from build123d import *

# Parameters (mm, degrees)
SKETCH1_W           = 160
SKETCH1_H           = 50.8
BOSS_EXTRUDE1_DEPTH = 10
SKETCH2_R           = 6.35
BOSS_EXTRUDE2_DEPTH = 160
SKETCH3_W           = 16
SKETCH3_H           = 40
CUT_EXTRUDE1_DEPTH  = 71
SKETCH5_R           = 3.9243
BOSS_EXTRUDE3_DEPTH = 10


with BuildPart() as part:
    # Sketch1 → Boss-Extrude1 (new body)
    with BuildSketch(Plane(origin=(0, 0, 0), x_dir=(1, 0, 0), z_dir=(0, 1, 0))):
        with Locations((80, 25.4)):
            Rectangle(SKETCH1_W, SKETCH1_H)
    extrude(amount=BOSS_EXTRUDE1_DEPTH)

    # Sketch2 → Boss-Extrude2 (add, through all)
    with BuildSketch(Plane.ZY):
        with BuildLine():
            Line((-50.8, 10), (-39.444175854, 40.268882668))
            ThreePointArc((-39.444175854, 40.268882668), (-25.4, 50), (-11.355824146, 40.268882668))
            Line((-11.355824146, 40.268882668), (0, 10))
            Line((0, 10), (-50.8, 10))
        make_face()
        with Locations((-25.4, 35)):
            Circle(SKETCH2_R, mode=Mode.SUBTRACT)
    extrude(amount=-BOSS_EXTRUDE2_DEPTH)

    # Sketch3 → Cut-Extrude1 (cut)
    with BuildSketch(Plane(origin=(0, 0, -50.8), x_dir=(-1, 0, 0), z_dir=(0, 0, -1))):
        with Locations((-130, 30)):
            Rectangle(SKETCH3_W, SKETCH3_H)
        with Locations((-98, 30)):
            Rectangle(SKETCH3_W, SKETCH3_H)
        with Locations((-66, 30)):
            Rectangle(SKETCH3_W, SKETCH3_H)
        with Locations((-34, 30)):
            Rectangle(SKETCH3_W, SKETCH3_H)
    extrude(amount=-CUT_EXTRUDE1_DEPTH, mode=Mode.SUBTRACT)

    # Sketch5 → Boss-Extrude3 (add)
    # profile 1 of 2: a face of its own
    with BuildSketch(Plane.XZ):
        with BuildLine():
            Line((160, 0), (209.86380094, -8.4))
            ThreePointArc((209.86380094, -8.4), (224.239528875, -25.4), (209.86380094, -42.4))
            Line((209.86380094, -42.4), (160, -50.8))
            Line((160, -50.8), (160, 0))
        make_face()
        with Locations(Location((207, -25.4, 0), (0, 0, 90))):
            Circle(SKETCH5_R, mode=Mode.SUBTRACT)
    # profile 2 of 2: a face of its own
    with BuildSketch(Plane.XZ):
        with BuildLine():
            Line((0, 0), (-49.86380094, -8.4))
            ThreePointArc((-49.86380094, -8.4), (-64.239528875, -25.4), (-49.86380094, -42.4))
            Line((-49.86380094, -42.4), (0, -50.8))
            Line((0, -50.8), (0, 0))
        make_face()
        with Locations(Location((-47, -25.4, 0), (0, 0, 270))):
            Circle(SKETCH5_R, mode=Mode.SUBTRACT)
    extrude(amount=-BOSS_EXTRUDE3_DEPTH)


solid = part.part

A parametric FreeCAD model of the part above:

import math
import FreeCAD as App
import Part
import Sketcher
from FreeCAD import Vector
Q = App.Units.Quantity


def add_polygon(sketch, points):
    """Adds a closed chain of lines whose ends are joined by coincident constraints."""
    first, n = sketch.GeometryCount, len(points)
    for a, b in zip(points, points[1:] + points[:1]):
        sketch.addGeometry(Part.LineSegment(App.Vector(*a, 0), App.Vector(*b, 0)), False)
    for i in range(n):
        sketch.addConstraint(Sketcher.Constraint("Coincident", first + i, 2, first + (i + 1) % n, 1))

doc = App.newDocument("Part")
body = doc.addObject("PartDesign::Body", "Body")

sketch1 = body.newObject("Sketcher::SketchObject", "Sketch")
sketch1.AttachmentSupport = (doc.getObject("XZ_Plane"), [""])
sketch1.MapMode = "FlatFace"
add_polygon(sketch1, [(0, -50.8), (0, 0), (160, 0), (160, -50.8)])
sketch1.addConstraint([
    Sketcher.Constraint("Vertical", 0),
    Sketcher.Constraint("Horizontal", 1),
    Sketcher.Constraint("Vertical", 2),
    Sketcher.Constraint("Horizontal", 3),
    Sketcher.Constraint("Coincident", 0, 2, -1, 1),
    Sketcher.Constraint("DistanceX", 1, 1, 1, 2, Q("160 mm")),
    Sketcher.Constraint("DistanceY", 0, 1, 0, 2, Q("50.8 mm")),
])
pad1 = body.newObject("PartDesign::Pad", "Pad")
pad1.Profile = sketch1
pad1.Length = 10
pad1.Reversed = True

sketch2 = body.newObject("Sketcher::SketchObject", "Sketch001")
sketch2.AttachmentSupport = (doc.getObject("YZ_Plane"), [""])
sketch2.MapMode = "FlatFace"
sketch2.addGeometry([
    Part.LineSegment(Vector(40.268883, -39.444176, 0), Vector(10, -50.8, 0)),
    Part.LineSegment(Vector(10, -50.8, 0), Vector(10, 0, 0)),
    Part.LineSegment(Vector(10, 0, 0), Vector(40.268883, -11.355824, 0)),
    Part.ArcOfCircle(Part.Circle(Vector(35, -25.4, 0), Vector(0, 0, 1), 15), math.radians(-69.435669), math.radians(69.435669)),
    Part.Circle(Vector(35, -25.4, 0), Vector(0, 0, 1), 6.35),
], False)
sketch2.addConstraint([
    Sketcher.Constraint("Coincident", 0, 2, 1, 1),
    Sketcher.Constraint("Coincident", 1, 2, 2, 1),
    Sketcher.Constraint("Tangent", 2, 2, 3, 2),
    Sketcher.Constraint("Tangent", 3, 1, 0, 1),
    Sketcher.Constraint("Vertical", 1),
    Sketcher.Constraint("Coincident", 4, 3, 3, 3),
    Sketcher.Constraint("PointOnObject", 1, 2, -1),
    Sketcher.Constraint("Vertical", 2, 2, 3, 1),
    Sketcher.Constraint("Radius", 3, Q("15 mm")),
    Sketcher.Constraint("Diameter", 4, Q("12.7 mm")),
    Sketcher.Constraint("DistanceY", 1, 1, 1, 2, Q("50.8 mm")),
    Sketcher.Constraint("DistanceX", -1, 1, 3, 3, Q("35 mm")),
    Sketcher.Constraint("DistanceX", -1, 1, 0, 2, Q("10 mm")),
])
pad2 = body.newObject("PartDesign::Pad", "Pad001")
pad2.Profile = sketch2
pad2.Length = 160

sketch3 = body.newObject("Sketcher::SketchObject", "Sketch002")
sketch3.AttachmentSupport = (doc.getObject("XY_Plane"), [""])
sketch3.MapMode = "FlatFace"
sketch3.AttachmentOffset = App.Placement(Vector(0, 0, -50.8), App.Rotation())
add_polygon(sketch3, [(138, 50), (138, 10), (122, 10), (122, 50)])
add_polygon(sketch3, [(106, 50), (106, 10), (90, 10), (90, 50)])
add_polygon(sketch3, [(74, 50), (74, 10), (58, 10), (58, 50)])
add_polygon(sketch3, [(42, 50), (42, 10), (26, 10), (26, 50)])
sketch3.addConstraint([
    Sketcher.Constraint("Vertical", 0),
    Sketcher.Constraint("Horizontal", 1),
    Sketcher.Constraint("Vertical", 2),
    Sketcher.Constraint("Horizontal", 3),
    Sketcher.Constraint("Vertical", 4),
    Sketcher.Constraint("Horizontal", 5),
    Sketcher.Constraint("Vertical", 6),
    Sketcher.Constraint("Horizontal", 7),
    Sketcher.Constraint("Vertical", 8),
    Sketcher.Constraint("Horizontal", 9),
    Sketcher.Constraint("Vertical", 10),
    Sketcher.Constraint("Horizontal", 11),
    Sketcher.Constraint("Vertical", 12),
    Sketcher.Constraint("Horizontal", 13),
    Sketcher.Constraint("Vertical", 14),
    Sketcher.Constraint("Horizontal", 15),
    Sketcher.Constraint("Horizontal", 1, 2, 4, 2),
    Sketcher.Constraint("Horizontal", 3, 2, 6, 2),
    Sketcher.Constraint("Horizontal", 5, 2, 8, 2),
    Sketcher.Constraint("Horizontal", 7, 2, 10, 2),
    Sketcher.Constraint("Horizontal", 9, 2, 12, 2),
    Sketcher.Constraint("Horizontal", 11, 2, 14, 2),
    Sketcher.Constraint("Equal", 3, 5),
    Sketcher.Constraint("Equal", 7, 9),
    Sketcher.Constraint("Equal", 11, 13),
    Sketcher.Constraint("DistanceX", 1, 2, 1, 1, Q("16 mm")),
    Sketcher.Constraint("DistanceY", 0, 2, 0, 1, Q("40 mm")),
    Sketcher.Constraint("DistanceX", -1, 1, 0, 2, Q("138 mm")),
    Sketcher.Constraint("DistanceY", -1, 1, 0, 2, Q("10 mm")),
    Sketcher.Constraint("DistanceX", -1, 1, 4, 2, Q("106 mm")),
    Sketcher.Constraint("DistanceX", -1, 1, 8, 2, Q("74 mm")),
    Sketcher.Constraint("DistanceX", -1, 1, 12, 2, Q("42 mm")),
])
pocket1 = body.newObject("PartDesign::Pocket", "Pocket")
pocket1.Profile = sketch3
pocket1.Length = 71
pocket1.Reversed = True

sketch4 = body.newObject("Sketcher::SketchObject", "Sketch003")
sketch4.AttachmentSupport = (doc.getObject("XZ_Plane"), [""])
sketch4.MapMode = "FlatFace"
sketch4.addGeometry([
    Part.LineSegment(Vector(209.863801, -8.4, 0), Vector(160, 0, 0)),
    Part.LineSegment(Vector(160, 0, 0), Vector(160, -50.8, 0)),
    Part.LineSegment(Vector(160, -50.8, 0), Vector(209.863801, -42.4, 0)),
    Part.ArcOfCircle(Part.Circle(Vector(207, -25.4, 0), Vector(0, 0, 1), 17.239529), math.radians(-80.437796), math.radians(80.437796)),
    Part.Circle(Vector(207, -25.4, 0), Vector(0, 0, 1), 3.9243),
    Part.LineSegment(Vector(0, 0, 0), Vector(-49.863801, -8.4, 0)),
    Part.ArcOfCircle(Part.Circle(Vector(-47, -25.4, 0), Vector(0, 0, 1), 17.239529), math.radians(99.562204), math.radians(260.437796)),
    Part.LineSegment(Vector(-49.863801, -42.4, 0), Vector(0, -50.8, 0)),
    Part.LineSegment(Vector(0, -50.8, 0), Vector(0, 0, 0)),
    Part.Circle(Vector(-47, -25.4, 0), Vector(0, 0, 1), 3.9243),
], False)
sketch4.addConstraint([
    Sketcher.Constraint("Coincident", 0, 2, 1, 1),
    Sketcher.Constraint("Coincident", 1, 2, 2, 1),
    Sketcher.Constraint("Tangent", 2, 2, 3, 1),
    Sketcher.Constraint("Tangent", 3, 2, 0, 1),
    Sketcher.Constraint("Tangent", 5, 2, 6, 1),
    Sketcher.Constraint("Tangent", 6, 2, 7, 1),
    Sketcher.Constraint("Coincident", 7, 2, 8, 1),
    Sketcher.Constraint("Coincident", 8, 2, 5, 1),
    Sketcher.Constraint("Vertical", 1),
    Sketcher.Constraint("Vertical", 8),
    Sketcher.Constraint("Coincident", 8, 2, -1, 1),
    Sketcher.Constraint("Coincident", 4, 3, 3, 3),
    Sketcher.Constraint("Coincident", 9, 3, 6, 3),
    Sketcher.Constraint("Equal", 3, 6),
    Sketcher.Constraint("Equal", 4, 9),
    Sketcher.Constraint("PointOnObject", 0, 2, -1),
    Sketcher.Constraint("Parallel", 2, 5),
    Sketcher.Constraint("Parallel", 0, 7),
    Sketcher.Constraint("Horizontal", 4, 3, 6, 3),
    Sketcher.Constraint("Horizontal", 3, 2, 5, 2),
    Sketcher.Constraint("DistanceY", 1, 2, 1, 1, Q("50.8 mm")),
    Sketcher.Constraint("DistanceX", -1, 1, 3, 3, Q("207 mm")),
    Sketcher.Constraint("DistanceX", 6, 3, -1, 1, Q("47 mm")),
    Sketcher.Constraint("DistanceY", 2, 2, 3, 3, Q("17 mm")),
    Sketcher.Constraint("Diameter", 4, Q("7.8486 mm")),
])
pad3 = body.newObject("PartDesign::Pad", "Pad002")
pad3.Profile = sketch4
pad3.Length = 10
pad3.Reversed = True

doc.recompute()
